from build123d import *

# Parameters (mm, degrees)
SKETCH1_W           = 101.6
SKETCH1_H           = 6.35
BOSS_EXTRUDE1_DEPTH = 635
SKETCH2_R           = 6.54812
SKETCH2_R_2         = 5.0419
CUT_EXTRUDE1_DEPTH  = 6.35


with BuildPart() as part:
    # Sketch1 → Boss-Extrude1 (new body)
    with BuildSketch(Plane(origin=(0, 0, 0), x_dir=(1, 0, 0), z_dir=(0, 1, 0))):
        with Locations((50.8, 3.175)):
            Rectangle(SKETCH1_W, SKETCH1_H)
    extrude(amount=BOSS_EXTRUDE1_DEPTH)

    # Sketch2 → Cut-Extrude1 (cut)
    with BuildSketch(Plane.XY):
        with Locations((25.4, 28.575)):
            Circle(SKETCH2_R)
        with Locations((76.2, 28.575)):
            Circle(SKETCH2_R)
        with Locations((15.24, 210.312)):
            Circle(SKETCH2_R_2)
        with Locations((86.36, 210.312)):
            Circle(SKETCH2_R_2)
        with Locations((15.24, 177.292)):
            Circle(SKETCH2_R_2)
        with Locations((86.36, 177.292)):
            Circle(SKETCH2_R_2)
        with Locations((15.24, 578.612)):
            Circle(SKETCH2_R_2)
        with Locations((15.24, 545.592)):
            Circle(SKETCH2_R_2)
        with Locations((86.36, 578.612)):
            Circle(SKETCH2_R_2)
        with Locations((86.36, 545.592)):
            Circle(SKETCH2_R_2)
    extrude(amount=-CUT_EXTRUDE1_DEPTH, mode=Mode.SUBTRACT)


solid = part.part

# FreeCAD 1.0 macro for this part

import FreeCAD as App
import Part
import Sketcher
from FreeCAD import Vector
Q = App.Units.Quantity

doc = App.newDocument("Part")
params = doc.addObject("Spreadsheet::Sheet", "Params")
for row, (alias, value) in enumerate([
    ("sketch1_width", "4 in"),
    ("sketch1_height", "0.25 in"),
    ("pad1_length", "25 in"),
    ("sketch2_diameter", "0.397 in"),
    ("pocket1_length", "0.25 in"),
], start=1):
    params.set(f"A{row}", alias)
    params.set(f"B{row}", "=" + value)
    params.setAlias(f"B{row}", alias)

body = doc.addObject("PartDesign::Body", "Body")

sketch1 = doc.addObject("Sketcher::SketchObject", "Sketch")
body.addObject(sketch1)
sketch1.AttachmentSupport = (doc.XZ_Plane, [""])
sketch1.MapMode = "FlatFace"
sketch1.addGeometry(Part.LineSegment(Vector(0, -6.35, 0), Vector(0, 0, 0)), False)
sketch1.addGeometry(Part.LineSegment(Vector(0, 0, 0), Vector(101.6, 0, 0)), False)
sketch1.addGeometry(Part.LineSegment(Vector(101.6, 0, 0), Vector(101.6, -6.35, 0)), False)
sketch1.addGeometry(Part.LineSegment(Vector(101.6, -6.35, 0), Vector(0, -6.35, 0)), False)
sketch1.addConstraint(Sketcher.Constraint("Coincident", 0, 2, 1, 1))
sketch1.addConstraint(Sketcher.Constraint("Coincident", 1, 2, 2, 1))
sketch1.addConstraint(Sketcher.Constraint("Coincident", 2, 2, 3, 1))
sketch1.addConstraint(Sketcher.Constraint("Coincident", 3, 2, 0, 1))
sketch1.addConstraint(Sketcher.Constraint("Vertical", 0))
sketch1.addConstraint(Sketcher.Constraint("Horizontal", 1))
sketch1.addConstraint(Sketcher.Constraint("Vertical", 2))
sketch1.addConstraint(Sketcher.Constraint("Horizontal", 3))
sketch1.addConstraint(Sketcher.Constraint("Coincident", 0, 2, -1, 1))
sketch1.addConstraint(Sketcher.Constraint("DistanceX", 1, 1, 1, 2, Q("4 in")))
sketch1.addConstraint(Sketcher.Constraint("DistanceY", 0, 1, 0, 2, Q("0.25 in")))
sketch1.setExpression("Constraints[9]", "Params.sketch1_width")
sketch1.setExpression("Constraints[10]", "Params.sketch1_height")
pad1 = doc.addObject("PartDesign::Pad", "Pad")
body.addObject(pad1)
pad1.Profile = sketch1
pad1.setExpression("Length", "Params.pad1_length")
pad1.Reversed = True

sketch2 = doc.addObject("Sketcher::SketchObject", "Sketch001")
body.addObject(sketch2)
sketch2.AttachmentSupport = (doc.XY_Plane, [""])
sketch2.MapMode = "FlatFace"
sketch2.addGeometry(Part.Circle(Vector(25.4, 28.575, 0), Vector(0, 0, 1), 6.54812), False)
sketch2.addGeometry(Part.Circle(Vector(76.2, 28.575, 0), Vector(0, 0, 1), 6.54812), False)
sketch2.addGeometry(Part.Circle(Vector(15.24, 210.312, 0), Vector(0, 0, 1), 5.0419), False)
sketch2.addGeometry(Part.Circle(Vector(86.36, 210.312, 0), Vector(0, 0, 1), 5.0419), False)
sketch2.addGeometry(Part.Circle(Vector(15.24, 177.292, 0), Vector(0, 0, 1), 5.0419), False)
sketch2.addGeometry(Part.Circle(Vector(86.36, 177.292, 0), Vector(0, 0, 1), 5.0419), False)
sketch2.addGeometry(Part.Circle(Vector(15.24, 578.612, 0), Vector(0, 0, 1), 5.0419), False)
sketch2.addGeometry(Part.Circle(Vector(15.24, 545.592, 0), Vector(0, 0, 1), 5.0419), False)
sketch2.addGeometry(Part.Circle(Vector(86.36, 578.612, 0), Vector(0, 0, 1), 5.0419), False)
sketch2.addGeometry(Part.Circle(Vector(86.36, 545.592, 0), Vector(0, 0, 1), 5.0419), False)
sketch2.addConstraint(Sketcher.Constraint("Equal", 0, 1))
sketch2.addConstraint(Sketcher.Constraint("Equal", 2, 3))
sketch2.addConstraint(Sketcher.Constraint("Equal", 3, 4))
sketch2.addConstraint(Sketcher.Constraint("Equal", 4, 5))
sketch2.addConstraint(Sketcher.Constraint("Equal", 5, 6))
sketch2.addConstraint(Sketcher.Constraint("Equal", 6, 7))
sketch2.addConstraint(Sketcher.Constraint("Equal", 7, 8))
sketch2.addConstraint(Sketcher.Constraint("Equal", 8, 9))
sketch2.addConstraint(Sketcher.Constraint("Horizontal", 0, 3, 1, 3))
sketch2.addConstraint(Sketcher.Constraint("Horizontal", 2, 3, 3, 3))
sketch2.addConstraint(Sketcher.Constraint("Horizontal", 4, 3, 5, 3))
sketch2.addConstraint(Sketcher.Constraint("Horizontal", 6, 3, 8, 3))
sketch2.addConstraint(Sketcher.Constraint("Horizontal", 7, 3, 9, 3))
sketch2.addConstraint(Sketcher.Constraint("Vertical", 2, 3, 4, 3))
sketch2.addConstraint(Sketcher.Constraint("Vertical", 3, 3, 5, 3))
sketch2.addConstraint(Sketcher.Constraint("Vertical", 4, 3, 6, 3))
sketch2.addConstraint(Sketcher.Constraint("Vertical", 6, 3, 7, 3))
sketch2.addConstraint(Sketcher.Constraint("Vertical", 5, 3, 8, 3))
sketch2.addConstraint(Sketcher.Constraint("Vertical", 8, 3, 9, 3))
sketch2.addConstraint(Sketcher.Constraint("Diameter", 2, Q("0.397 in")))
sketch2.addConstraint(Sketcher.Constraint("DistanceX", -1, 1, 0, 3, Q("1 in")))
sketch2.addConstraint(Sketcher.Constraint("DistanceX", -1, 1, 1, 3, Q("3 in")))
sketch2.addConstraint(Sketcher.Constraint("Diameter", 0, Q("0.5156 in")))
sketch2.addConstraint(Sketcher.Constraint("DistanceX", -1, 1, 2, 3, Q("0.6 in")))
sketch2.addConstraint(Sketcher.Constraint("DistanceX", -1, 1, 3, 3, Q("3.4 in")))
sketch2.addConstraint(Sketcher.Constraint("DistanceY", 4, 3, 2, 3, Q("1.3 in")))
sketch2.addConstraint(Sketcher.Constraint("DistanceY", 2, 3, 6, 3, Q("14.5 in")))
sketch2.addConstraint(Sketcher.Constraint("DistanceY", 7, 3, 6, 3, Q("1.3 in")))
sketch2.addConstraint(Sketcher.Constraint("DistanceY", -1, 1, 2, 3, Q("8.28 in")))
sketch2.addConstraint(Sketcher.Constraint("DistanceY", -1, 1, 0, 3, Q("1.125 in")))
sketch2.setExpression("Constraints[19]", "Params.sketch2_diameter")
pocket1 = doc.addObject("PartDesign::Pocket", "Pocket")
body.addObject(pocket1)
pocket1.Profile = sketch2
pocket1.setExpression("Length", "Params.pocket1_length")

doc.recompute()
